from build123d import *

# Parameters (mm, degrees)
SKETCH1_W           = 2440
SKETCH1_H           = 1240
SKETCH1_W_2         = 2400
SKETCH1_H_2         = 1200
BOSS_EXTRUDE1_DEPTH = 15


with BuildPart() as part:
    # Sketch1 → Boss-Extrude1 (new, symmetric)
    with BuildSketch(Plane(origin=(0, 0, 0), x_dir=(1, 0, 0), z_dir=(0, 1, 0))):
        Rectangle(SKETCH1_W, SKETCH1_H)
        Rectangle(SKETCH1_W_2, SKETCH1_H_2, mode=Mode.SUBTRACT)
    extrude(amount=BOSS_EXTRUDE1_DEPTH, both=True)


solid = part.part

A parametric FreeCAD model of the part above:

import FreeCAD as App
import Part
import Sketcher
from FreeCAD import Vector
Q = App.Units.Quantity


def add_polygon(sketch, points):
    """Adds a closed chain of lines whose ends are joined by coincident constraints."""
    first, n = sketch.GeometryCount, len(points)
    for a, b in zip(points, points[1:] + points[:1]):
        sketch.addGeometry(Part.LineSegment(App.Vector(*a, 0), App.Vector(*b, 0)), False)
    for i in range(n):
        sketch.addConstraint(Sketcher.Constraint("Coincident", first + i, 2, first + (i + 1) % n, 1))

doc = App.newDocument("Part")
body = doc.addObject("PartDesign::Body", "Body")

sketch1 = body.newObject("Sketcher::SketchObject", "Sketch")
sketch1.AttachmentSupport = (doc.getObject("XZ_Plane"), [""])
sketch1.MapMode = "FlatFace"
add_polygon(sketch1, [(-1220, -620), (-1220, 620), (1220, 620), (1220, -620)])
add_polygon(sketch1, [(1200, 600), (-1200, 600), (-1200, -600), (1200, -600)])
sketch1.addConstraint([
    Sketcher.Constraint("Vertical", 0),
    Sketcher.Constraint("Horizontal", 1),
    Sketcher.Constraint("Vertical", 2),
    Sketcher.Constraint("Horizontal", 3),
    Sketcher.Constraint("Horizontal", 4),
    Sketcher.Constraint("Vertical", 5),
    Sketcher.Constraint("Horizontal", 6),
    Sketcher.Constraint("Vertical", 7),
    Sketcher.Constraint("Symmetric", 0, 2, 2, 2, -1, 1),
    Sketcher.Constraint("Symmetric", 4, 2, 6, 2, -1, 1),
    Sketcher.Constraint("DistanceX", 1, 1, 1, 2, Q("2440 mm")),
    Sketcher.Constraint("DistanceX", 4, 2, 4, 1, Q("2400 mm")),
    Sketcher.Constraint("DistanceY", 0, 1, 0, 2, Q("1240 mm")),
    Sketcher.Constraint("DistanceY", 5, 2, 5, 1, Q("1200 mm")),
])
pad1 = body.newObject("PartDesign::Pad", "Pad")
pad1.Profile = sketch1
pad1.Length = 30
pad1.Midplane = True

doc.recompute()
